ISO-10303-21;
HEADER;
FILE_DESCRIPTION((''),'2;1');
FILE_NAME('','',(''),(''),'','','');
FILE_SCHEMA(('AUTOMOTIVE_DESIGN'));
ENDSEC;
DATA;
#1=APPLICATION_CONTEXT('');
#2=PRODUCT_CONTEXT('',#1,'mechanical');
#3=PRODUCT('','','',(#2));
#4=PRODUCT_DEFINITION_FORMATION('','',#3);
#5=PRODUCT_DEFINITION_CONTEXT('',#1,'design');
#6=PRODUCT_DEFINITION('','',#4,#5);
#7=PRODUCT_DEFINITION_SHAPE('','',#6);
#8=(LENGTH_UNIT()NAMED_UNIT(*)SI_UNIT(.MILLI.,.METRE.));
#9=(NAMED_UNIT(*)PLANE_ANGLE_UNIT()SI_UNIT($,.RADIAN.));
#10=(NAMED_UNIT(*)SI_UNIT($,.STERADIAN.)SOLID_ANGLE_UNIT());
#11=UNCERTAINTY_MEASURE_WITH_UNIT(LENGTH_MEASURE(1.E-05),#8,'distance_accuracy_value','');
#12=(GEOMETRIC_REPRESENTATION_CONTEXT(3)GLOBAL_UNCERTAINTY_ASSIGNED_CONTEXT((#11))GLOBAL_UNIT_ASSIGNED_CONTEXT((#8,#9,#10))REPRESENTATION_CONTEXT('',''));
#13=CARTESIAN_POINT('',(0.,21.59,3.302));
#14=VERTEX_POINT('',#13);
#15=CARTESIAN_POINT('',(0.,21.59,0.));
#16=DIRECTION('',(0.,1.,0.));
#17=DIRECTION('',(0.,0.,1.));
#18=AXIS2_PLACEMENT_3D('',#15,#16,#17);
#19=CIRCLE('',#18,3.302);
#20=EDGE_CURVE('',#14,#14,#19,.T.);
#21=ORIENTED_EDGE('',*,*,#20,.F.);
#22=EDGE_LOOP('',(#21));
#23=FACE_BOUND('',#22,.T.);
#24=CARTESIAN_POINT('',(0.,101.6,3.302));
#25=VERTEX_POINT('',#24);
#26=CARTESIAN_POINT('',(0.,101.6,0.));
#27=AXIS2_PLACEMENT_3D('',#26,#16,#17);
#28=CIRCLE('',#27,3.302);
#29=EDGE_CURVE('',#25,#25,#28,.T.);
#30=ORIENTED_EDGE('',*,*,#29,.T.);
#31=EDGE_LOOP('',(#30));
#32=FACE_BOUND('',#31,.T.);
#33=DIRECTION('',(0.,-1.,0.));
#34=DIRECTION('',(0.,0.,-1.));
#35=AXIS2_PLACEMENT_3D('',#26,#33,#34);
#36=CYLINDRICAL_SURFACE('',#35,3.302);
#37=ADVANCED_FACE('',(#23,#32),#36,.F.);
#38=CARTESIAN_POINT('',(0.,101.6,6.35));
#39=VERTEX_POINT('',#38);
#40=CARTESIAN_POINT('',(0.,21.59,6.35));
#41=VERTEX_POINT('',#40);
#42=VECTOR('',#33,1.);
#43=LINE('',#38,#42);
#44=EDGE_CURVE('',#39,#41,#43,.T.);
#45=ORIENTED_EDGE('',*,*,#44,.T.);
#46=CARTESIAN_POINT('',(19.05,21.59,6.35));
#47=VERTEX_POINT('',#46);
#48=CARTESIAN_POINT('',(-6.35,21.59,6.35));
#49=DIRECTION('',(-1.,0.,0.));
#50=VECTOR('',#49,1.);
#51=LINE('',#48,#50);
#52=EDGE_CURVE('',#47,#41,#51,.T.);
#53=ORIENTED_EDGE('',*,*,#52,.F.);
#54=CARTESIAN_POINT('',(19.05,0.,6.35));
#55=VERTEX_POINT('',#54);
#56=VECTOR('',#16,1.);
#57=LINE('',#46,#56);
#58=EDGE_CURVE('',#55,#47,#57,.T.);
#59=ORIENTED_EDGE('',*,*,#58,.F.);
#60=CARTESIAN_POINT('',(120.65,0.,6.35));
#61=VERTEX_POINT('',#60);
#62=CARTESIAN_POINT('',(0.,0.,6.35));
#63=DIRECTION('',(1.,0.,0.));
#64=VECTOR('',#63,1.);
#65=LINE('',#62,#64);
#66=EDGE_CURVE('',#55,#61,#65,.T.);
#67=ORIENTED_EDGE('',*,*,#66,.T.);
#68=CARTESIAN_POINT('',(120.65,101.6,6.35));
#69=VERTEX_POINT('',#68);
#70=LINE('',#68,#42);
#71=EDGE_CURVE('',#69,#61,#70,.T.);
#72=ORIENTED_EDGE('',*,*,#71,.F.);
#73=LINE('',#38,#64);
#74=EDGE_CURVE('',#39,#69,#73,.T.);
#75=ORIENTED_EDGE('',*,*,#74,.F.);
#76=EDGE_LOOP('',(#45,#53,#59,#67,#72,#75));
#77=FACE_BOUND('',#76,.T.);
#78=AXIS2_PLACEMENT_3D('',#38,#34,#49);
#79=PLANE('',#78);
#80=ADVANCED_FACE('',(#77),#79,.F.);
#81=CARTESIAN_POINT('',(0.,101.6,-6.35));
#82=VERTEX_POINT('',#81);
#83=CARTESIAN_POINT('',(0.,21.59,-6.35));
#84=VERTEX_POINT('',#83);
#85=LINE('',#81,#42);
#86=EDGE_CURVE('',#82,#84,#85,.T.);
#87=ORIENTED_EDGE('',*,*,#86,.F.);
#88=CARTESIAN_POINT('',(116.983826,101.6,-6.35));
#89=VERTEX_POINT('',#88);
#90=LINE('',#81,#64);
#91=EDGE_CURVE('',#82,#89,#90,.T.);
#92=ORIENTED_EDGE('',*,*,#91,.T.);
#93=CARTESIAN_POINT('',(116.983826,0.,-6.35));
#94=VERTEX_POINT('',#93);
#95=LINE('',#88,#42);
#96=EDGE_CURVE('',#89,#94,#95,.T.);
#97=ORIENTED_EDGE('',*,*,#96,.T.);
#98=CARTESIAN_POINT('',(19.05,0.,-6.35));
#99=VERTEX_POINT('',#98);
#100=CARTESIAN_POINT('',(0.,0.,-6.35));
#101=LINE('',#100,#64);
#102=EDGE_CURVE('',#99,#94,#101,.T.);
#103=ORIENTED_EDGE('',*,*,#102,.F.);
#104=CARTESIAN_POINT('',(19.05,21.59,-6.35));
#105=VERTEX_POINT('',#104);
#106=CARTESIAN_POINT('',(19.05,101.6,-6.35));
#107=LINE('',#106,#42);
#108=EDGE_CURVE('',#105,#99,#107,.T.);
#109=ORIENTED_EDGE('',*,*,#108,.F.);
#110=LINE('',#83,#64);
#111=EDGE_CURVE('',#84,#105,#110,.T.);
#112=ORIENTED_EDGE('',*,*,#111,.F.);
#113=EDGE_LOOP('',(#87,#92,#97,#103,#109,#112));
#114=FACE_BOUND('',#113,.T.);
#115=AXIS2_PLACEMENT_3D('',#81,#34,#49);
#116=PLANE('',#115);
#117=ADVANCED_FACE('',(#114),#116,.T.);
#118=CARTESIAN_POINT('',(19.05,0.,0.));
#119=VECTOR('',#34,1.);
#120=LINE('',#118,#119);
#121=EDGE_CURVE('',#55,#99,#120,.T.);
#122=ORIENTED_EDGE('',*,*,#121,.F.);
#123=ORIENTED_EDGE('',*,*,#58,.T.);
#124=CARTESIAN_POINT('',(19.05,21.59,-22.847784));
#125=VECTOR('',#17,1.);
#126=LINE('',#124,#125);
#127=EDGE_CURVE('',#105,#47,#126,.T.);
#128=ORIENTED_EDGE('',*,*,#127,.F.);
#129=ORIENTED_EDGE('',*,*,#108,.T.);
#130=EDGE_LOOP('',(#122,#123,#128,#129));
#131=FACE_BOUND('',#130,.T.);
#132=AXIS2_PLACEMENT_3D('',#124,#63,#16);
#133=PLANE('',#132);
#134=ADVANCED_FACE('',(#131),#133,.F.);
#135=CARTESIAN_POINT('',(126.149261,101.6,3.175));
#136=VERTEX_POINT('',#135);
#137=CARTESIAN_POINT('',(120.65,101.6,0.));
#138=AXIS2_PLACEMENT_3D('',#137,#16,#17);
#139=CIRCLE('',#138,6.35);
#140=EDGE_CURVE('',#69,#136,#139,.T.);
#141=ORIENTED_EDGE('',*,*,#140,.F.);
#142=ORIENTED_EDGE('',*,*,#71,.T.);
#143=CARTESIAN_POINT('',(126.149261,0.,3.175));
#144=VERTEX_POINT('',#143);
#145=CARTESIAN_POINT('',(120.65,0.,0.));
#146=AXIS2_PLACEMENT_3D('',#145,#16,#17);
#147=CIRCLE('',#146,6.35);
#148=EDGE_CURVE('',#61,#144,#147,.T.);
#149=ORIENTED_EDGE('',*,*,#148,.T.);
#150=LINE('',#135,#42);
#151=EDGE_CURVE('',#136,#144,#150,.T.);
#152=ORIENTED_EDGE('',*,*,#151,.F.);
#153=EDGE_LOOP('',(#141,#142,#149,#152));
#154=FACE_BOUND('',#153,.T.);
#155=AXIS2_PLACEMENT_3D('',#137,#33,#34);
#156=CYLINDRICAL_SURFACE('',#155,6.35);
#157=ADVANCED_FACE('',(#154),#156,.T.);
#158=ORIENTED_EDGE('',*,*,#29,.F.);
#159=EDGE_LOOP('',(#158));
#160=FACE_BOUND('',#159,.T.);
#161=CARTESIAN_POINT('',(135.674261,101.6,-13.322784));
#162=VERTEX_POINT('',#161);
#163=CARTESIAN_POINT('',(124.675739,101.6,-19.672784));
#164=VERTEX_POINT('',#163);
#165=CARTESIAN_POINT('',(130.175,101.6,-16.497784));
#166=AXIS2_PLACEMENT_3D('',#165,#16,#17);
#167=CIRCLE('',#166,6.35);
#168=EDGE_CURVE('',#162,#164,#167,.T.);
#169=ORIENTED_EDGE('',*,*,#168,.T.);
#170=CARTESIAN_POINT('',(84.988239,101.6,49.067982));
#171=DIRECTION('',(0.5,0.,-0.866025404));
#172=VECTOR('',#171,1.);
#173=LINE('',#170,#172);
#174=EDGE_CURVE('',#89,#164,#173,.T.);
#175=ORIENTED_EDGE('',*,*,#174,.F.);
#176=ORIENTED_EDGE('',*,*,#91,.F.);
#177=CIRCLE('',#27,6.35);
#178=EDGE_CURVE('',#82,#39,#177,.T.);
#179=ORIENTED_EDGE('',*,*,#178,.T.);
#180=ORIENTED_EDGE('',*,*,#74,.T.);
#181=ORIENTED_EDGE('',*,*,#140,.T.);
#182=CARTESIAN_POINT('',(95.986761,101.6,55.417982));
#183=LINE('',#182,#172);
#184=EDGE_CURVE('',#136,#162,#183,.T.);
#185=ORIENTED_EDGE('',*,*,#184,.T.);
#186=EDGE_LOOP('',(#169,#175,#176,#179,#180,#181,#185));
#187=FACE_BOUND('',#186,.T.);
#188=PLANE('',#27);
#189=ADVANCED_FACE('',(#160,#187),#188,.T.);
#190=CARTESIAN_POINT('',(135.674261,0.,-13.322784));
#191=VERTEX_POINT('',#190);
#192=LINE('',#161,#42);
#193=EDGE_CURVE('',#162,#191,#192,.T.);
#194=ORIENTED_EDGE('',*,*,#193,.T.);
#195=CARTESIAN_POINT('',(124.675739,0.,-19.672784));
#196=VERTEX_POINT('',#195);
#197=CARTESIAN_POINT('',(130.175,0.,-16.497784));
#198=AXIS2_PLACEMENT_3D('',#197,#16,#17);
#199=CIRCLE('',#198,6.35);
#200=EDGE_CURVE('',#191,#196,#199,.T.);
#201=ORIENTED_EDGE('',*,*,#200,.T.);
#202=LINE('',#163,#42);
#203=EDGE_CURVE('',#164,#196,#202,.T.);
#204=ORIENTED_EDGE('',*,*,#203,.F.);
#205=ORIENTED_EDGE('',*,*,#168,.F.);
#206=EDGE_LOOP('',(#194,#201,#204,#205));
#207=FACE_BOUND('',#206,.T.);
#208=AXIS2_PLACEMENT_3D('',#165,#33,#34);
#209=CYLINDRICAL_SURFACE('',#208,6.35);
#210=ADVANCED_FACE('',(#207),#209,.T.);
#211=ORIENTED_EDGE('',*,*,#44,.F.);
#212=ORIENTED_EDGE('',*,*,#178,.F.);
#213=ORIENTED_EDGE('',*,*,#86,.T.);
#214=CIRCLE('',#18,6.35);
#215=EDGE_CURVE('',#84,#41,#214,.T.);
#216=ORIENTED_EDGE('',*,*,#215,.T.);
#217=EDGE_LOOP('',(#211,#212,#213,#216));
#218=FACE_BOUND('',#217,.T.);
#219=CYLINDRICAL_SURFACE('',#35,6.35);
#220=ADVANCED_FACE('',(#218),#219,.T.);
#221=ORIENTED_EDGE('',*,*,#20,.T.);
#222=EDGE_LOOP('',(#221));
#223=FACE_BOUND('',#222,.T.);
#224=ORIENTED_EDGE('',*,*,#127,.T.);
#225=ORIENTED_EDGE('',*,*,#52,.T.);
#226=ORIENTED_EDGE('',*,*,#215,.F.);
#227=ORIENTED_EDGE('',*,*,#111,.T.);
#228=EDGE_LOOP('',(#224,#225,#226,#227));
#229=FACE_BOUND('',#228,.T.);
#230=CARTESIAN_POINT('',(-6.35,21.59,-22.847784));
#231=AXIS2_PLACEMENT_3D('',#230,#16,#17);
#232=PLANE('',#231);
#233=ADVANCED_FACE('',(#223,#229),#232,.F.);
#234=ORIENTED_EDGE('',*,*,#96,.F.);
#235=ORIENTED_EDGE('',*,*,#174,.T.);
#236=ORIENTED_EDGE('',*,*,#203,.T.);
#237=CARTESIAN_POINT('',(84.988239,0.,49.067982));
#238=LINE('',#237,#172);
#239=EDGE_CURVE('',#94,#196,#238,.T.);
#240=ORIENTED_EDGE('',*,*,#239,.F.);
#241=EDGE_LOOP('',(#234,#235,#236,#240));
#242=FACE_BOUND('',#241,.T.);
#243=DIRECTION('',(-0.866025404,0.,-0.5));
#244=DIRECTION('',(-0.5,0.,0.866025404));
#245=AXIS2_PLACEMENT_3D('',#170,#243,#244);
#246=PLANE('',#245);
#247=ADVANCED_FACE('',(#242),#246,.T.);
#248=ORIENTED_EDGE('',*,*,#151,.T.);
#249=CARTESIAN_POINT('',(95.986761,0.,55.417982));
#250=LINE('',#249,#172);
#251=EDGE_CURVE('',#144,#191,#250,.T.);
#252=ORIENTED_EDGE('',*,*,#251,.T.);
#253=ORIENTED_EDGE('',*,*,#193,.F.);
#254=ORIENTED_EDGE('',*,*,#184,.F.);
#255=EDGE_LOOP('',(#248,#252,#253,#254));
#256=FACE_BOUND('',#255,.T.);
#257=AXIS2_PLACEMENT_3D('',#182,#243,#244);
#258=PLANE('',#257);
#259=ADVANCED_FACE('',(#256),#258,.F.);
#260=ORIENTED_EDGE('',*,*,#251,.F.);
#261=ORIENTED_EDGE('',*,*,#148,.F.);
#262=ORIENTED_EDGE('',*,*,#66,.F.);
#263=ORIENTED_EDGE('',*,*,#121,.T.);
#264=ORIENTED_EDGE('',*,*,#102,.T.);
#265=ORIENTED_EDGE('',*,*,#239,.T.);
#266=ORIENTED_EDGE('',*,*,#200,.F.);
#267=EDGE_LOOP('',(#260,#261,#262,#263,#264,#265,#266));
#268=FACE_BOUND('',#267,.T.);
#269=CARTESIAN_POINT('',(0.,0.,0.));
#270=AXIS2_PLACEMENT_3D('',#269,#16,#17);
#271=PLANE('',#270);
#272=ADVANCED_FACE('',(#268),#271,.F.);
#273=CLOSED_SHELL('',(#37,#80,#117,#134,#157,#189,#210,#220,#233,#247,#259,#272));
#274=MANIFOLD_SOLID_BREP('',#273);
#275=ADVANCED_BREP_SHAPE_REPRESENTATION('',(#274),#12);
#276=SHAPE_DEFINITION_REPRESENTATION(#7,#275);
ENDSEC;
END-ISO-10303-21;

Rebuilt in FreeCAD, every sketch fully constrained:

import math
import FreeCAD as App
import Part
import Sketcher

V = App.Vector
Q = App.Units.Quantity

doc = App.newDocument("Part")
body = doc.addObject("PartDesign::Body", "Body")

sketch1 = body.newObject("Sketcher::SketchObject", "Sketch")
sketch1.AttachmentSupport = (doc.getObject("XZ_Plane"), [""])
sketch1.MapMode = "FlatFace"
sketch1.addGeometry([
    Part.LineSegment(V(117, -6.3, 0), V(0, -6.3, 0)),
    Part.ArcOfCircle(Part.Circle(V(0, 0, 0), V(0, 0, 1), 6.3), math.radians(90), math.radians(270)),
    Part.LineSegment(V(0, 6.3, 0), V(120.7, 6.3, 0)),
    Part.ArcOfCircle(Part.Circle(V(120.7, 0, 0), V(0, 0, 1), 6.3), math.radians(30), math.radians(90)),
    Part.LineSegment(V(126.1, 3.2, 0), V(135.7, -13.3, 0)),
    Part.ArcOfCircle(Part.Circle(V(130.2, -16.5, 0), V(0, 0, 1), 6.3), math.radians(-150), math.radians(30)),
    Part.LineSegment(V(124.7, -19.7, 0), V(117, -6.3, 0)),
    Part.Circle(V(0, 0, 0), V(0, 0, 1), 3.3),
], False)
sketch1.addConstraint([
    Sketcher.Constraint("Tangent", 0, 2, 1, 2),
    Sketcher.Constraint("Tangent", 1, 1, 2, 1),
    Sketcher.Constraint("Tangent", 2, 2, 3, 2),
    Sketcher.Constraint("Tangent", 3, 1, 4, 1),
    Sketcher.Constraint("Tangent", 4, 2, 5, 2),
    Sketcher.Constraint("Tangent", 5, 1, 6, 1),
    Sketcher.Constraint("Coincident", 6, 2, 0, 1),
    Sketcher.Constraint("Horizontal", 0),
    Sketcher.Constraint("Horizontal", 2),
    Sketcher.Constraint("Coincident", 1, 3, -1, 1),
    Sketcher.Constraint("Coincident", 7, 3, -1, 1),
    Sketcher.Constraint("Equal", 1, 3),
    Sketcher.Constraint("Equal", 3, 5),
    Sketcher.Constraint("Parallel", 4, 6),
    Sketcher.Constraint("Diameter", 7, Q("0.26 in")),
    Sketcher.Constraint("Radius", 1, Q("0.25 in")),
    Sketcher.Constraint("Angle", 4, Q("-60 deg")),
    Sketcher.Constraint("DistanceX", 2, 1, 2, 2, Q("4.75 in")),
    Sketcher.Constraint("Distance", 4, Q("0.75 in")),
])
pad1 = body.newObject("PartDesign::Pad", "Pad")
pad1.Profile = sketch1
pad1.Length = Q("4 in")
pad1.Reversed = True

sketch2 = body.newObject("Sketcher::SketchObject", "Sketch001")
sketch2.AttachmentSupport = (doc.getObject("XY_Plane"), [""])
sketch2.MapMode = "FlatFace"
sketch2.AttachmentOffset = App.Placement(V(0, 0, 0.25 * 25.4), App.Rotation())
sketch2.addGeometry([
    Part.LineSegment(V(-6, 22, 0), V(-6, 0, 0)),
    Part.LineSegment(V(-6, 0, 0), V(19, 0, 0)),
    Part.LineSegment(V(19, 0, 0), V(19, 22, 0)),
    Part.LineSegment(V(19, 22, 0), V(-6, 22, 0)),
], False)
sketch2.addConstraint([
    Sketcher.Constraint("Coincident", 0, 2, 1, 1),
    Sketcher.Constraint("Coincident", 1, 2, 2, 1),
    Sketcher.Constraint("Coincident", 2, 2, 3, 1),
    Sketcher.Constraint("Coincident", 3, 2, 0, 1),
    Sketcher.Constraint("Vertical", 0),
    Sketcher.Constraint("Horizontal", 1),
    Sketcher.Constraint("Vertical", 2),
    Sketcher.Constraint("Horizontal", 3),
    Sketcher.Constraint("PointOnObject", 0, 2, -1),
    Sketcher.Constraint("DistanceX", 1, 1, 1, 2, Q("1 in")),
    Sketcher.Constraint("DistanceY", 0, 2, 0, 1, Q("0.85 in")),
    Sketcher.Constraint("DistanceX", 0, 2, -1, 1, Q("0.25 in")),
])
pocket1 = body.newObject("PartDesign::Pocket", "Pocket")
pocket1.Profile = sketch2
pocket1.Type = "ThroughAll"

doc.recompute()
